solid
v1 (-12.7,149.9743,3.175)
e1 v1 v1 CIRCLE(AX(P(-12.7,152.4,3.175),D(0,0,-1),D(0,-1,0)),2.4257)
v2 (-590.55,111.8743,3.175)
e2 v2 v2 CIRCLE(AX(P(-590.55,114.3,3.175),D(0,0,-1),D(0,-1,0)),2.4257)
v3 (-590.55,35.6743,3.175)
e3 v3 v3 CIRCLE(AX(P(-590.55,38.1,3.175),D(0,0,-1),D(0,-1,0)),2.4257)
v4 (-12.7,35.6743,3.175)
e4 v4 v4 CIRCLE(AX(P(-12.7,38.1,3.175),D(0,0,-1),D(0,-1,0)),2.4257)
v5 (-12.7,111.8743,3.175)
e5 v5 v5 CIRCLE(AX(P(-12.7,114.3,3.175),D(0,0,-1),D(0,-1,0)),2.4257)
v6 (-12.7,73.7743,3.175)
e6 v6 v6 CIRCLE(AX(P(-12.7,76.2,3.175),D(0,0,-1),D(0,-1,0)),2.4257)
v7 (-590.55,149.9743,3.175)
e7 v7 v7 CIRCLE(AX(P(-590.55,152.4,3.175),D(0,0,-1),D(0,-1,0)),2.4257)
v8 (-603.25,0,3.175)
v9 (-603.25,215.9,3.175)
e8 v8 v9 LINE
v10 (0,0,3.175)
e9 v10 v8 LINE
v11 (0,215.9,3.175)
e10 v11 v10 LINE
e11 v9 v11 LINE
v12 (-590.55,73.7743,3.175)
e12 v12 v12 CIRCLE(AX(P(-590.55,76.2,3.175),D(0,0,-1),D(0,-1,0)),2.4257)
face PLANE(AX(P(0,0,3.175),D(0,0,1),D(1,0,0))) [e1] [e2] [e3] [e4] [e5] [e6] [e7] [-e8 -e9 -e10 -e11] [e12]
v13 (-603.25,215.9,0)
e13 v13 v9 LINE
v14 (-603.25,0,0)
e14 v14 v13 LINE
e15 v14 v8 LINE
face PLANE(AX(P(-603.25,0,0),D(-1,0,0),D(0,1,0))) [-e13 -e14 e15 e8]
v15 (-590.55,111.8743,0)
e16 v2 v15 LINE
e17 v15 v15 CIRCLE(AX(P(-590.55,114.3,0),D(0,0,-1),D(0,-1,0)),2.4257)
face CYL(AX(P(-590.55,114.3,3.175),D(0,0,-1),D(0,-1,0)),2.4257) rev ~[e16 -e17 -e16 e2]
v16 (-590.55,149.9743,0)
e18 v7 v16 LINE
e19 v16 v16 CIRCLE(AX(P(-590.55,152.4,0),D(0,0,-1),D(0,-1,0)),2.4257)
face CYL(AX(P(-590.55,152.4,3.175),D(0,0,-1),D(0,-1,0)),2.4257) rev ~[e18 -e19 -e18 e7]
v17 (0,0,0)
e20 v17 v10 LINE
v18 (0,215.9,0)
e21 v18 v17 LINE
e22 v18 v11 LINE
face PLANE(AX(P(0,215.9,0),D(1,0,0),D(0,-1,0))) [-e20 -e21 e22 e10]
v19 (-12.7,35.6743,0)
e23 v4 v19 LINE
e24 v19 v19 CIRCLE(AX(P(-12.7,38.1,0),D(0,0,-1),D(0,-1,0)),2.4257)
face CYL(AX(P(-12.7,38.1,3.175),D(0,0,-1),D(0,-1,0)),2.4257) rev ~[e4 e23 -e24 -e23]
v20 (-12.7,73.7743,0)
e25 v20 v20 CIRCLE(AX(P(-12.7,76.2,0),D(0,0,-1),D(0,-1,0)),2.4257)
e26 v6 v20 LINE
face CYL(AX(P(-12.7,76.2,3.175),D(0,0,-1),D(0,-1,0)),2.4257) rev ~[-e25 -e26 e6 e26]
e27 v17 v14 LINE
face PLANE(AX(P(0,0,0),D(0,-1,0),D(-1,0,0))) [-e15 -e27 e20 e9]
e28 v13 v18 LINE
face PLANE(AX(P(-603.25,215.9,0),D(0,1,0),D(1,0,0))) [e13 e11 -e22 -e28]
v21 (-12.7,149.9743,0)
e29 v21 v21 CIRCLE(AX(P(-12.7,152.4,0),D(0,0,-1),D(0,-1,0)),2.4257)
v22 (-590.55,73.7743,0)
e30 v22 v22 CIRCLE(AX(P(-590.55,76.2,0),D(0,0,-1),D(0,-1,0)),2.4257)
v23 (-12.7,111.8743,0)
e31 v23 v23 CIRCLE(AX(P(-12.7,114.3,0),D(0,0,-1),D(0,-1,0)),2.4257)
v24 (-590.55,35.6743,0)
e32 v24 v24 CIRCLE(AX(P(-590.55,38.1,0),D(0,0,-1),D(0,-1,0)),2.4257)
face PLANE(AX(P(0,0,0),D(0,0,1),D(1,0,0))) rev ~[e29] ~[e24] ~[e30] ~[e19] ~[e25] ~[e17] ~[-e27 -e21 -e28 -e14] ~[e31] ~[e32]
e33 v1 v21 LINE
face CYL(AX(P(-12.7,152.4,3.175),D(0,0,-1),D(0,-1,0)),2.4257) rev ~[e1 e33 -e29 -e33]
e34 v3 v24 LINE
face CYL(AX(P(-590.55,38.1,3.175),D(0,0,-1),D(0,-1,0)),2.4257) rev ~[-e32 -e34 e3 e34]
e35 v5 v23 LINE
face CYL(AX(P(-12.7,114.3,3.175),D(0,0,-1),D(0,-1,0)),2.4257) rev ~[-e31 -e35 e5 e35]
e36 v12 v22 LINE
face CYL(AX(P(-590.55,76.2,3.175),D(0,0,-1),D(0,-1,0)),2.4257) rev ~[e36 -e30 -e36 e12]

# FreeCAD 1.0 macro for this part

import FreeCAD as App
import Part
import Sketcher
Q = App.Units.Quantity


def add_polygon(sketch, points):
    """Adds a closed chain of lines whose ends are joined by coincident constraints."""
    first, n = sketch.GeometryCount, len(points)
    for a, b in zip(points, points[1:] + points[:1]):
        sketch.addGeometry(Part.LineSegment(App.Vector(*a, 0), App.Vector(*b, 0)), False)
    for i in range(n):
        sketch.addConstraint(Sketcher.Constraint("Coincident", first + i, 2, first + (i + 1) % n, 1))

doc = App.newDocument("Part")
body = doc.addObject("PartDesign::Body", "Body")

# Sketch on XY plane
sketch1 = doc.addObject("Sketcher::SketchObject", "Sketch")
body.addObject(sketch1)
sketch1.AttachmentSupport = (doc.XY_Plane, [""])
sketch1.MapMode = "FlatFace"
add_polygon(sketch1, [(-603, 0), (0, 0), (0, 216), (-603, 216)])  # lines 0-3
sketch1.addConstraint([
    Sketcher.Constraint("Horizontal", 0),
    Sketcher.Constraint("Vertical", 1),
    Sketcher.Constraint("Horizontal", 2),
    Sketcher.Constraint("Vertical", 3),
    Sketcher.Constraint("Coincident", 0, 2, -1, 1),
    Sketcher.Constraint("DistanceY", 1, 1, 1, 2, Q("8.5 in")),
    Sketcher.Constraint("DistanceX", 0, 1, 0, 2, Q("23.75 in")),
])
pad1 = doc.addObject("PartDesign::Pad", "Pad")
body.addObject(pad1)
pad1.Profile = sketch1
pad1.Length = Q("0.125 in")

# Sketch on XY plane
sketch2 = doc.addObject("Sketcher::SketchObject", "Sketch001")
body.addObject(sketch2)
sketch2.AttachmentSupport = (doc.XY_Plane, [""])
sketch2.MapMode = "FlatFace"
sketch2.AttachmentOffset = App.Placement(App.Vector(0, 0, 0.125 * 25.4), App.Rotation())
sketch2.addGeometry([
    Part.Circle(App.Vector(-12.7, 38.1, 0), App.Vector(0, 0, 1), 2.4),  # 0
    Part.Circle(App.Vector(-12.7, 76.2, 0), App.Vector(0, 0, 1), 2.4),  # 1
    Part.Circle(App.Vector(-12.7, 114.3, 0), App.Vector(0, 0, 1), 2.4),  # 2
    Part.Circle(App.Vector(-12.7, 152.4, 0), App.Vector(0, 0, 1), 2.4),  # 3
    Part.Circle(App.Vector(-590.5, 152.4, 0), App.Vector(0, 0, 1), 2.4),  # 4
    Part.Circle(App.Vector(-590.5, 114.3, 0), App.Vector(0, 0, 1), 2.4),  # 5
    Part.Circle(App.Vector(-590.5, 76.2, 0), App.Vector(0, 0, 1), 2.4),  # 6
    Part.Circle(App.Vector(-590.5, 38.1, 0), App.Vector(0, 0, 1), 2.4),  # 7
], False)
sketch2.addConstraint([
    Sketcher.Constraint("Equal", 0, 1),
    Sketcher.Constraint("Equal", 1, 2),
    Sketcher.Constraint("Equal", 2, 3),
    Sketcher.Constraint("Equal", 3, 4),
    Sketcher.Constraint("Equal", 4, 5),
    Sketcher.Constraint("Equal", 5, 6),
    Sketcher.Constraint("Equal", 6, 7),
    Sketcher.Constraint("Horizontal", 3, 3, 4, 3),
    Sketcher.Constraint("Horizontal", 2, 3, 5, 3),
    Sketcher.Constraint("Horizontal", 1, 3, 6, 3),
    Sketcher.Constraint("Horizontal", 0, 3, 7, 3),
    Sketcher.Constraint("Vertical", 0, 3, 1, 3),
    Sketcher.Constraint("Vertical", 1, 3, 2, 3),
    Sketcher.Constraint("Vertical", 2, 3, 3, 3),
    Sketcher.Constraint("Vertical", 4, 3, 5, 3),
    Sketcher.Constraint("Vertical", 5, 3, 6, 3),
    Sketcher.Constraint("Vertical", 6, 3, 7, 3),
    Sketcher.Constraint("Diameter", 0, Q("0.191 in")),
    Sketcher.Constraint("DistanceY", -1, 1, 1, 3, Q("3 in")),
    Sketcher.Constraint("DistanceY", -1, 1, 3, 3, Q("6 in")),
    Sketcher.Constraint("DistanceY", 0, 3, 2, 3, Q("3 in")),
    Sketcher.Constraint("DistanceX", 0, 3, -1, 1, Q("0.5 in")),
    Sketcher.Constraint("DistanceY", -1, 1, 0, 3, Q("1.5 in")),
    Sketcher.Constraint("DistanceX", 4, 3, -1, 1, Q("23.25 in")),
])
doc.recompute()
hole = doc.addObject("PartDesign::Hole", "Hole")
body.addObject(hole)
hole.Profile = sketch2
hole.ThreadType = "None"
hole.Diameter = Q("0.191 in")
hole.DepthType = "ThroughAll"

doc.recompute()
